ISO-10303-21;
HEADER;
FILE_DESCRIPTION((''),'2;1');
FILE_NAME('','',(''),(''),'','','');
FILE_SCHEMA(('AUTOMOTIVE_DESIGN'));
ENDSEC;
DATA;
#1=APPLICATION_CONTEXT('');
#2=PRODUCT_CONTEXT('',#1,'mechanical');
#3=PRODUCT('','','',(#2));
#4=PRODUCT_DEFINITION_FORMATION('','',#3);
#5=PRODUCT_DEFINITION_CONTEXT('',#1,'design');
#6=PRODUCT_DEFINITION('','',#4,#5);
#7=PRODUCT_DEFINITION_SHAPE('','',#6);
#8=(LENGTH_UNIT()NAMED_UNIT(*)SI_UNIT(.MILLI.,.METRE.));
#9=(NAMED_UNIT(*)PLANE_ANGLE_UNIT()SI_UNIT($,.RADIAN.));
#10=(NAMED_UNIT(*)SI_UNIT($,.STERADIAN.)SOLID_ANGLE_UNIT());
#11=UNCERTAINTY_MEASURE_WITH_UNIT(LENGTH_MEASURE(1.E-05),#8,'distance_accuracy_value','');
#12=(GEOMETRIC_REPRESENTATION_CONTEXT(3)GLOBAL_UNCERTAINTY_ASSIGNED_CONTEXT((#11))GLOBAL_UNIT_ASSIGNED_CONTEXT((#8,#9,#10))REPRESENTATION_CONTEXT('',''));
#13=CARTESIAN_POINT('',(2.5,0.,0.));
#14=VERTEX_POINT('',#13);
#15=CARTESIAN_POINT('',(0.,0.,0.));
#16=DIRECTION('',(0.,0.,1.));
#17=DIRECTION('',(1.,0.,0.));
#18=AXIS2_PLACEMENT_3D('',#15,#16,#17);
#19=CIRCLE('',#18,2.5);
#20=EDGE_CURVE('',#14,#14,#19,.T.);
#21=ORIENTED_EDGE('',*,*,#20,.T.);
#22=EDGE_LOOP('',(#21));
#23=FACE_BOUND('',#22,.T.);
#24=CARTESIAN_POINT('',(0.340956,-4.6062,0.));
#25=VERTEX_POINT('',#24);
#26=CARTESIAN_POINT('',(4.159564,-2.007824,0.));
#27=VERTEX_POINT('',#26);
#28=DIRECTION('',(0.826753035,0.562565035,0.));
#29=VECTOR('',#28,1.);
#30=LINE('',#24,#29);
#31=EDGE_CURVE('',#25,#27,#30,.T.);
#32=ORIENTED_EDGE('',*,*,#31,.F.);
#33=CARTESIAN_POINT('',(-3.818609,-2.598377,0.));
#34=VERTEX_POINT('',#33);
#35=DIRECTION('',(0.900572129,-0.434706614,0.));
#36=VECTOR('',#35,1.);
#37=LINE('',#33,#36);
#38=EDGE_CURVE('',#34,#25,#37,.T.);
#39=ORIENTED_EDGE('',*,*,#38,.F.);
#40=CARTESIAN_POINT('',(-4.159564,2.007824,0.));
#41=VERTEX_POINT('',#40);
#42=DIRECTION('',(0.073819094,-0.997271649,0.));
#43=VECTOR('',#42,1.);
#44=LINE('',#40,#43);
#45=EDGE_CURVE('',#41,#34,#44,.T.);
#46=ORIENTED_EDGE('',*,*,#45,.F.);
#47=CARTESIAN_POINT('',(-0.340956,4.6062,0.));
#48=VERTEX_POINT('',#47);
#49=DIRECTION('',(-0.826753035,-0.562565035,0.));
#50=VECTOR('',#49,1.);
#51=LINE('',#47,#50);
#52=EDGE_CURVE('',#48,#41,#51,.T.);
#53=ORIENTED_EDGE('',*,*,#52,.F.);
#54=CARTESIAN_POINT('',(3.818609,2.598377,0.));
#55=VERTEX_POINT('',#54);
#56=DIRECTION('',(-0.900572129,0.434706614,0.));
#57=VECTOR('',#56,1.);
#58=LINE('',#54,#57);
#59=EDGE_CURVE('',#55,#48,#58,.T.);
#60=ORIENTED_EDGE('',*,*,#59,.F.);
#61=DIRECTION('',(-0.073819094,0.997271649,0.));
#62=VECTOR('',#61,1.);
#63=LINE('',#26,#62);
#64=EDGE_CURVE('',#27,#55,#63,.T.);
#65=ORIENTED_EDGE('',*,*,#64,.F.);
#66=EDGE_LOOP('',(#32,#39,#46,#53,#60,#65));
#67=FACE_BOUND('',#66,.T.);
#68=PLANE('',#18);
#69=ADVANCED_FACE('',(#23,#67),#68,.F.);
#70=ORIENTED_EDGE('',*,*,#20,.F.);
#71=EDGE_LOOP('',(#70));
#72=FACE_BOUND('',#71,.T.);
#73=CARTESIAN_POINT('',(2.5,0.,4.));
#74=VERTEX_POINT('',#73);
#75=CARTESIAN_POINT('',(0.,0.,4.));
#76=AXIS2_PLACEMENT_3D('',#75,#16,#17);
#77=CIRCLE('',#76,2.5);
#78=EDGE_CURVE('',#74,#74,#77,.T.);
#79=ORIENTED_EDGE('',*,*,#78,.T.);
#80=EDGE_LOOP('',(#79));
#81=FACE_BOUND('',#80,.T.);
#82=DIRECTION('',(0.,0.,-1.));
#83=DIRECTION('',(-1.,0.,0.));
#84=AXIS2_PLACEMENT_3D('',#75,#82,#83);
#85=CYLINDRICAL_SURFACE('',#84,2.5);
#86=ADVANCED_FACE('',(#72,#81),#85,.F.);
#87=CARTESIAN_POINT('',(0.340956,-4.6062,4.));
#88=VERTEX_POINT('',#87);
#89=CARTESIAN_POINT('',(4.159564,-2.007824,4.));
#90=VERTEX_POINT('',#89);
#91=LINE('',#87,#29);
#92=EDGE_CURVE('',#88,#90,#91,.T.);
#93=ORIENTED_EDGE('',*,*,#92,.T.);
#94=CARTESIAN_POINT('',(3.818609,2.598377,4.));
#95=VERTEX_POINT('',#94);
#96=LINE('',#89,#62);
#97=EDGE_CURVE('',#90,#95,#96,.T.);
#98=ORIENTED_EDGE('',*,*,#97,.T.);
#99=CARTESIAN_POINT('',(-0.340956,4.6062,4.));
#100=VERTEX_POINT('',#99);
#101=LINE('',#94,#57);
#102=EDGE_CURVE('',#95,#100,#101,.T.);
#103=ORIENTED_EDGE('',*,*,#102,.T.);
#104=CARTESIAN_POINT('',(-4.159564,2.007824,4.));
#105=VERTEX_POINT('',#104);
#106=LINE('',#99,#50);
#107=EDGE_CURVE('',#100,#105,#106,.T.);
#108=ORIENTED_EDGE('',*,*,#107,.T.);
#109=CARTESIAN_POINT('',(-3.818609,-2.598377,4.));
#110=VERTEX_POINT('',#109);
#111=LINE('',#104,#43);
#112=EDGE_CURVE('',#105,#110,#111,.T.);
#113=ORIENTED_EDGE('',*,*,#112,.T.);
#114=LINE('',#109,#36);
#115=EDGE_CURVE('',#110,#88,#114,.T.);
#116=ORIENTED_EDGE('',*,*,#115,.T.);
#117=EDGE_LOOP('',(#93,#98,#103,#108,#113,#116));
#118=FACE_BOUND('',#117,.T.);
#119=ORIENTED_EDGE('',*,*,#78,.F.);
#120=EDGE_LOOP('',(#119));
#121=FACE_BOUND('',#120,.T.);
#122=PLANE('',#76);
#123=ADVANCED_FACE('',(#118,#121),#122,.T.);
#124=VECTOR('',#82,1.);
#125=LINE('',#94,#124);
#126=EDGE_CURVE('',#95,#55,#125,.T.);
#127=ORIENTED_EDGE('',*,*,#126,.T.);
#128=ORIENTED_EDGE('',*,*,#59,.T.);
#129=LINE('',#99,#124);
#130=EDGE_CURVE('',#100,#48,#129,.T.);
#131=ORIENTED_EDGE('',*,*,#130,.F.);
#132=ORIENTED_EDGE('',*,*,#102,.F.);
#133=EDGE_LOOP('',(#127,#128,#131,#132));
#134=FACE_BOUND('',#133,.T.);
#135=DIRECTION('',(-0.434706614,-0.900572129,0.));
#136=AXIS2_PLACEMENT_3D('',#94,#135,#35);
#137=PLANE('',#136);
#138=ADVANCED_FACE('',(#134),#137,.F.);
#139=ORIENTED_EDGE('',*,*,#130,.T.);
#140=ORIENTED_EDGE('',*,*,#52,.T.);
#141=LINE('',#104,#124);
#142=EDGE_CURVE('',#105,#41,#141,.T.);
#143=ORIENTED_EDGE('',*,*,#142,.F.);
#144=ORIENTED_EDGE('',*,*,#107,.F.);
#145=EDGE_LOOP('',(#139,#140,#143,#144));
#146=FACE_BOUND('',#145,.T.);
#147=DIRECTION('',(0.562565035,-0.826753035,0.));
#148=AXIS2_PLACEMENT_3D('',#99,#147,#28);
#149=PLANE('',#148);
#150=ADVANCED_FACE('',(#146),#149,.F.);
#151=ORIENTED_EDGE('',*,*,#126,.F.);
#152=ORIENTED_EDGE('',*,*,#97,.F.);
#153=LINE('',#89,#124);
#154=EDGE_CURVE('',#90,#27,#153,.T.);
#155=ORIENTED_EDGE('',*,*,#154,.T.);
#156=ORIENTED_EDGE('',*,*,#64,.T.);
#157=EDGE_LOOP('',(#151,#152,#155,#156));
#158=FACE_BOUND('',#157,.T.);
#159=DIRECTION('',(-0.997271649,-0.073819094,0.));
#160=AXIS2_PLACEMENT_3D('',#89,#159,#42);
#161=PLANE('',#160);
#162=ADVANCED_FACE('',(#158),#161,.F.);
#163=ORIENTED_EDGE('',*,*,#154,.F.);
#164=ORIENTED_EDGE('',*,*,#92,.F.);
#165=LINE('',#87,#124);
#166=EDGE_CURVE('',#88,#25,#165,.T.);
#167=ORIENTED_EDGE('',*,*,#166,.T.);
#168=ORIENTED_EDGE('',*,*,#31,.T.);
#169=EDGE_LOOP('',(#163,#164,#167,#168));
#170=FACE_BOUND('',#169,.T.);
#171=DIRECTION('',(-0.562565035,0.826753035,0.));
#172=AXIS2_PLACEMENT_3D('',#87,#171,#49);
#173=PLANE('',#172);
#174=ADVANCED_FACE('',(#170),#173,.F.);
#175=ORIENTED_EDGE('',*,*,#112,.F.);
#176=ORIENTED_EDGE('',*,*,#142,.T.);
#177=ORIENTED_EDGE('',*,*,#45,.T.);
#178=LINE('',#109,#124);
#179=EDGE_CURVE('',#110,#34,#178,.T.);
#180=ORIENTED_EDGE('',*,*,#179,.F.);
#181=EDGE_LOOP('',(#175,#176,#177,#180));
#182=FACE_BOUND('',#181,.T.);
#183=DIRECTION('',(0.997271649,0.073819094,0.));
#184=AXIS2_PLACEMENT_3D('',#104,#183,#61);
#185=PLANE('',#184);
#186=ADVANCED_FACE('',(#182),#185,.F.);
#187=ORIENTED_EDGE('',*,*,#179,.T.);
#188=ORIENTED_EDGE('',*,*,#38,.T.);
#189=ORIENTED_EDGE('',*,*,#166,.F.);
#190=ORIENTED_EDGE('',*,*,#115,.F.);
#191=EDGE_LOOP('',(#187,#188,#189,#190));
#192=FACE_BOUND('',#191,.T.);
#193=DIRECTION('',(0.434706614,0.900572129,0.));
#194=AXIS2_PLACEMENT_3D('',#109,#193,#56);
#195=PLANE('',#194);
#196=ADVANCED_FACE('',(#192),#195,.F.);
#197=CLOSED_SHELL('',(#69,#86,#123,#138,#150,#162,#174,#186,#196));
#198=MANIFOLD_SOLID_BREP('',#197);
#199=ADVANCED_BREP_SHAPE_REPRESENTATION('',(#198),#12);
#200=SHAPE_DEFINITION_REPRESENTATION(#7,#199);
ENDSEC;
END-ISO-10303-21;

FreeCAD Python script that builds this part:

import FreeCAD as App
import Part
import Sketcher

V = App.Vector

doc = App.newDocument("Part")
body = doc.addObject("PartDesign::Body", "Body")

# Sketch on XY plane
sketch1 = doc.addObject("Sketcher::SketchObject", "Sketch")
body.addObject(sketch1)
sketch1.AttachmentSupport = (doc.XY_Plane, [""])
sketch1.MapMode = "FlatFace"
sketch1.addGeometry(Part.LineSegment(V(-3.818609, -2.598377, 0), V(0.340956, -4.6062, 0)), False)
sketch1.addGeometry(Part.LineSegment(V(0.340956, -4.6062, 0), V(4.159564, -2.007824, 0)), False)
sketch1.addGeometry(Part.LineSegment(V(4.159564, -2.007824, 0), V(3.818609, 2.598377, 0)), False)
sketch1.addGeometry(Part.LineSegment(V(3.818609, 2.598377, 0), V(-0.340956, 4.6062, 0)), False)
sketch1.addGeometry(Part.LineSegment(V(-0.340956, 4.6062, 0), V(-4.159564, 2.007824, 0)), False)
sketch1.addGeometry(Part.LineSegment(V(-4.159564, 2.007824, 0), V(-3.818609, -2.598377, 0)), False)
sketch1.addGeometry(Part.Circle(V(0, 0, 0), V(0, 0, 1), 2.5), False)
sketch1.addConstraint(Sketcher.Constraint("Coincident", 0, 2, 1, 1))
sketch1.addConstraint(Sketcher.Constraint("Coincident", 1, 2, 2, 1))
sketch1.addConstraint(Sketcher.Constraint("Coincident", 2, 2, 3, 1))
sketch1.addConstraint(Sketcher.Constraint("Coincident", 3, 2, 4, 1))
sketch1.addConstraint(Sketcher.Constraint("Coincident", 4, 2, 5, 1))
sketch1.addConstraint(Sketcher.Constraint("Coincident", 5, 2, 0, 1))
sketch1.addConstraint(Sketcher.Constraint("Coincident", 6, 3, -1, 1))
sketch1.addConstraint(Sketcher.Constraint("Symmetric", 0, 2, 3, 2, -1, 1))
sketch1.addConstraint(Sketcher.Constraint("Symmetric", 1, 2, 4, 2, -1, 1))
sketch1.addConstraint(Sketcher.Constraint("Symmetric", 2, 2, 5, 2, -1, 1))
sketch1.addConstraint(Sketcher.Constraint("Equal", 0, 1))
sketch1.addConstraint(Sketcher.Constraint("Equal", 1, 2))
sketch1.addConstraint(Sketcher.Constraint("Diameter", 6, 5.0))
sketch1.addConstraint(Sketcher.Constraint("DistanceY", 0, 2, -1, 1, 4.6062))
sketch1.addConstraint(Sketcher.Constraint("DistanceY", 1, 2, 2, 2, 4.6062))
sketch1.addConstraint(Sketcher.Constraint("DistanceX", -1, 1, 2, 2, 3.818609))
sketch1.addConstraint(Sketcher.Constraint("DistanceX", 0, 2, 1, 2, 3.818609))
pad1 = doc.addObject("PartDesign::Pad", "Pad")
body.addObject(pad1)
pad1.Profile = sketch1
pad1.Length = 4

doc.recompute()
